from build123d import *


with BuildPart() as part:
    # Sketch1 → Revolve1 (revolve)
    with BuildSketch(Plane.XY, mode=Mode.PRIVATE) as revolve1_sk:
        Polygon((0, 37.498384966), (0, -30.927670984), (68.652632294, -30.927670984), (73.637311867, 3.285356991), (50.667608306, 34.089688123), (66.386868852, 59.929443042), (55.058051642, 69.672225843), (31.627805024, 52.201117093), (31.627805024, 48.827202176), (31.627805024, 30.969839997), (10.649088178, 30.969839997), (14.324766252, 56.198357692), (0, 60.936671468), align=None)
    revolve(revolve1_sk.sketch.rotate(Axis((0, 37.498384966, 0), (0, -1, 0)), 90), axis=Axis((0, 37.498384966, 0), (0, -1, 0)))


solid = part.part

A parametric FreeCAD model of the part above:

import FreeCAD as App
import Part
import Sketcher
from FreeCAD import Vector

doc = App.newDocument("Part")
body = doc.addObject("PartDesign::Body", "Body")

sketch1 = body.newObject("Sketcher::SketchObject", "Sketch")
sketch1.AttachmentSupport = (doc.getObject("XY_Plane"), [""])
sketch1.MapMode = "FlatFace"
sketch1.addGeometry([
    Part.LineSegment(Vector(0, -30.927671, 0), Vector(68.652632, -30.927671, 0)),
    Part.LineSegment(Vector(68.652632, -30.927671, 0), Vector(73.637312, 3.285357, 0)),
    Part.LineSegment(Vector(73.637312, 3.285357, 0), Vector(50.667608, 34.089688, 0)),
    Part.LineSegment(Vector(50.667608, 34.089688, 0), Vector(66.386869, 59.929443, 0)),
    Part.LineSegment(Vector(66.386869, 59.929443, 0), Vector(55.058052, 69.672226, 0)),
    Part.LineSegment(Vector(55.058052, 69.672226, 0), Vector(31.627805, 52.201117, 0)),
    Part.LineSegment(Vector(31.627805, 52.201117, 0), Vector(31.627805, 30.96984, 0)),
    Part.LineSegment(Vector(31.627805, 30.96984, 0), Vector(10.649088, 30.96984, 0)),
    Part.LineSegment(Vector(10.649088, 30.96984, 0), Vector(14.324766, 56.198358, 0)),
    Part.LineSegment(Vector(14.324766, 56.198358, 0), Vector(0, 60.936671, 0)),
    Part.LineSegment(Vector(0, 60.936671, 0), Vector(0, -30.927671, 0)),
], False)
sketch1.addConstraint([
    Sketcher.Constraint("Coincident", 0, 2, 1, 1),
    Sketcher.Constraint("Coincident", 1, 2, 2, 1),
    Sketcher.Constraint("Coincident", 2, 2, 3, 1),
    Sketcher.Constraint("Coincident", 3, 2, 4, 1),
    Sketcher.Constraint("Coincident", 4, 2, 5, 1),
    Sketcher.Constraint("Coincident", 5, 2, 6, 1),
    Sketcher.Constraint("Coincident", 6, 2, 7, 1),
    Sketcher.Constraint("Coincident", 7, 2, 8, 1),
    Sketcher.Constraint("Coincident", 8, 2, 9, 1),
    Sketcher.Constraint("Coincident", 9, 2, 10, 1),
    Sketcher.Constraint("Coincident", 10, 2, 0, 1),
    Sketcher.Constraint("Horizontal", 0),
    Sketcher.Constraint("Vertical", 6),
    Sketcher.Constraint("Horizontal", 7),
    Sketcher.Constraint("Vertical", 10),
    Sketcher.Constraint("PointOnObject", 9, 2, -2),
    Sketcher.Constraint("Perpendicular", 2, 5),
    Sketcher.Constraint("Parallel", 1, 8),
    Sketcher.Constraint("Distance", 4, 14.942018),
    Sketcher.Constraint("DistanceX", 0, 1, 0, 2, 68.652632),
    Sketcher.Constraint("DistanceX", 7, 2, 7, 1, 20.978717),
    Sketcher.Constraint("DistanceY", 6, 2, 6, 1, 21.231277),
    Sketcher.Constraint("DistanceY", 10, 2, 10, 1, 91.864342),
    Sketcher.Constraint("DistanceY", 0, 2, -1, 1, 30.927671),
    Sketcher.Constraint("DistanceX", -1, 1, 1, 2, 73.637312),
    Sketcher.Constraint("DistanceX", -1, 1, 2, 2, 50.667608),
    Sketcher.Constraint("DistanceY", -1, 1, 2, 2, 34.089688),
    Sketcher.Constraint("DistanceX", -1, 1, 3, 2, 66.386869),
    Sketcher.Constraint("DistanceX", -1, 1, 4, 2, 55.058052),
    Sketcher.Constraint("DistanceY", -1, 1, 6, 2, 30.96984),
    Sketcher.Constraint("DistanceX", -1, 1, 7, 2, 10.649088),
    Sketcher.Constraint("DistanceY", 1, 2, 2, 2, 30.804331),
    Sketcher.Constraint("DistanceX", 8, 2, 5, 2, 17.303039),
])
revolution = body.newObject("PartDesign::Revolution", "Revolution")
revolution.Profile = sketch1
revolution.ReferenceAxis = (sketch1, ["V_Axis"])
revolution.Angle = 360

doc.recompute()
